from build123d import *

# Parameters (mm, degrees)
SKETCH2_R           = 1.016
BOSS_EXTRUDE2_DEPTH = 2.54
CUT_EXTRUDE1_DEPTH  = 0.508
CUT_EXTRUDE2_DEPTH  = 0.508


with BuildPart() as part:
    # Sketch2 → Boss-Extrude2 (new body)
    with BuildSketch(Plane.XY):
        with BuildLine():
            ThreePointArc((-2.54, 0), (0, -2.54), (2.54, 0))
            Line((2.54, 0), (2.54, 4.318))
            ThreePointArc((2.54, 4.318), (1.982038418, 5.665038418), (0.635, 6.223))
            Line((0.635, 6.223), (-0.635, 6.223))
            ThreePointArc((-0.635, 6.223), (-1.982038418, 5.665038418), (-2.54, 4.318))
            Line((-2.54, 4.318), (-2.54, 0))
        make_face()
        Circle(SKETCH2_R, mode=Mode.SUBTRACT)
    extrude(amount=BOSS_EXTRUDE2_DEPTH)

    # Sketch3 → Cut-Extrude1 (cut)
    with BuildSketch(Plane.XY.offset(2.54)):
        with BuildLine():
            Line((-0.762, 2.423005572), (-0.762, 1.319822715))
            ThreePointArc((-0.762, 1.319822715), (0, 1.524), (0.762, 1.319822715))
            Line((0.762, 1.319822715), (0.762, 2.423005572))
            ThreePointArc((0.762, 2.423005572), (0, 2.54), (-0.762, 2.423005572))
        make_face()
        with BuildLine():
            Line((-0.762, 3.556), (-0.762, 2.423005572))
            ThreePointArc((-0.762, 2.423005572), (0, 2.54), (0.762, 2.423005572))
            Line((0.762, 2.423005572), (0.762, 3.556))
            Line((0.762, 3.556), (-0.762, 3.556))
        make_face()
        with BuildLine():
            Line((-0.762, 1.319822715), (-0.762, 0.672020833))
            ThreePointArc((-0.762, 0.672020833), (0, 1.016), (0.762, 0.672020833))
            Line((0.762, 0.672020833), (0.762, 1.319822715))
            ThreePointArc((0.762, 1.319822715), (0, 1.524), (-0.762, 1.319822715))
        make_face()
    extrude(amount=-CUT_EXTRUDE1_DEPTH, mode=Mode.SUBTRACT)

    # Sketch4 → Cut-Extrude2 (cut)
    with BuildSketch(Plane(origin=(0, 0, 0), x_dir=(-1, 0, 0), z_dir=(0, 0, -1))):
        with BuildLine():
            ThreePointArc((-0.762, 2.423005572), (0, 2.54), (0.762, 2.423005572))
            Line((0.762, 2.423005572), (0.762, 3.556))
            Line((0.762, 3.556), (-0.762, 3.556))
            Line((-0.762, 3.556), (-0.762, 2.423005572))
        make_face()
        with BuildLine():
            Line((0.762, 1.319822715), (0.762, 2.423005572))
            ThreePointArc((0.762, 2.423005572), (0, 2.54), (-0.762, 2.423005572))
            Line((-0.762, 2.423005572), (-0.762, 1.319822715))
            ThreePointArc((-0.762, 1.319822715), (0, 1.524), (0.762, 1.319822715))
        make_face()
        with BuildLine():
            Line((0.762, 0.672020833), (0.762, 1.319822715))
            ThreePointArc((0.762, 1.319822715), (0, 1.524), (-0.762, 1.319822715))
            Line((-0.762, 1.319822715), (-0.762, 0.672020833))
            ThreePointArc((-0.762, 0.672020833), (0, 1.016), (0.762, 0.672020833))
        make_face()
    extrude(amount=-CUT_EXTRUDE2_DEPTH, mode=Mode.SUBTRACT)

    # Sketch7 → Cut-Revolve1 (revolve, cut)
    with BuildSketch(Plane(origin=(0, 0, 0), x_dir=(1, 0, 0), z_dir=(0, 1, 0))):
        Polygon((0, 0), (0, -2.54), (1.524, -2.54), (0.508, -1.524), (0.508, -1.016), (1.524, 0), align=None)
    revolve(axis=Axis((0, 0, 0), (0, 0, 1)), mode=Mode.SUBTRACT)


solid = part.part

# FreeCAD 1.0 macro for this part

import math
import FreeCAD as App
import Part
import Sketcher
Q = App.Units.Quantity

doc = App.newDocument("Part")
body = doc.addObject("PartDesign::Body", "Body")

# Sketch on XY plane
sketch1 = doc.addObject("Sketcher::SketchObject", "Sketch")
body.addObject(sketch1)
sketch1.AttachmentSupport = (doc.XY_Plane, [""])
sketch1.MapMode = "FlatFace"
sketch1.addGeometry([
    Part.ArcOfCircle(Part.Circle(App.Vector(0, 0, 0), App.Vector(0, 0, 1), 2.54), math.radians(180), math.radians(360)),  # 0
    Part.LineSegment(App.Vector(2.54, 0, 0), App.Vector(2.54, 4.318, 0)),  # 1
    Part.ArcOfCircle(Part.Circle(App.Vector(0.635, 4.318, 0), App.Vector(0, 0, 1), 1.905), math.radians(0), math.radians(90)),  # 2
    Part.LineSegment(App.Vector(0.635, 6.223, 0), App.Vector(-0.635, 6.223, 0)),  # 3
    Part.ArcOfCircle(Part.Circle(App.Vector(-0.635, 4.318, 0), App.Vector(0, 0, 1), 1.905), math.radians(90), math.radians(180)),  # 4
    Part.LineSegment(App.Vector(-2.54, 4.318, 0), App.Vector(-2.54, 0, 0)),  # 5
    Part.Circle(App.Vector(0, 0, 0), App.Vector(0, 0, 1), 1.016),  # 6
], False)
sketch1.addConstraint([
    Sketcher.Constraint("Tangent", 0, 2, 1, 1),
    Sketcher.Constraint("Tangent", 1, 2, 2, 1),
    Sketcher.Constraint("Tangent", 2, 2, 3, 1),
    Sketcher.Constraint("Tangent", 3, 2, 4, 1),
    Sketcher.Constraint("Tangent", 4, 2, 5, 1),
    Sketcher.Constraint("Tangent", 5, 2, 0, 1),
    Sketcher.Constraint("Vertical", 1),
    Sketcher.Constraint("Horizontal", 3),
    Sketcher.Constraint("Vertical", 5),
    Sketcher.Constraint("Coincident", 0, 3, -1, 1),
    Sketcher.Constraint("Coincident", 6, 3, -1, 1),
    Sketcher.Constraint("Equal", 2, 4),
    Sketcher.Constraint("Radius", 0, Q("0.1 in")),
    Sketcher.Constraint("Diameter", 6, Q("0.08 in")),
    Sketcher.Constraint("Radius", 2, Q("0.075 in")),
    Sketcher.Constraint("DistanceY", 1, 1, 1, 2, Q("0.17 in")),
])
pad1 = doc.addObject("PartDesign::Pad", "Pad")
body.addObject(pad1)
pad1.Profile = sketch1
pad1.Length = Q("0.1 in")

# Sketch on XY plane
sketch2 = doc.addObject("Sketcher::SketchObject", "Sketch001")
body.addObject(sketch2)
sketch2.AttachmentSupport = (doc.XY_Plane, [""])
sketch2.MapMode = "FlatFace"
sketch2.AttachmentOffset = App.Placement(App.Vector(0, 0, 0.1 * 25.4), App.Rotation())
sketch2.addGeometry([
    Part.LineSegment(App.Vector(0.762, 3.556, 0), App.Vector(-0.762, 3.556, 0)),
    Part.LineSegment(App.Vector(-0.762, 3.556, 0), App.Vector(-0.762, 0.672021, 0)),
    Part.ArcOfCircle(Part.Circle(App.Vector(0, 0, 0), App.Vector(0, 0, 1), 1.016), math.radians(41.409622), math.radians(138.590378)),
    Part.LineSegment(App.Vector(0.762, 0.672021, 0), App.Vector(0.762, 3.556, 0)),
], False)
sketch2.addConstraint([
    Sketcher.Constraint("Coincident", 0, 2, 1, 1),
    Sketcher.Constraint("Coincident", 1, 2, 2, 2),
    Sketcher.Constraint("Coincident", 2, 1, 3, 1),
    Sketcher.Constraint("Coincident", 3, 2, 0, 1),
    Sketcher.Constraint("Horizontal", 0),
    Sketcher.Constraint("Vertical", 1),
    Sketcher.Constraint("Vertical", 3),
    Sketcher.Constraint("Coincident", 2, 3, -1, 1),
    Sketcher.Constraint("Horizontal", 1, 2, 2, 1),
    Sketcher.Constraint("Radius", 2, Q("0.04 in")),
    Sketcher.Constraint("DistanceX", 0, 2, 0, 1, Q("0.06 in")),
    Sketcher.Constraint("DistanceY", -1, 1, 0, 2, Q("0.14 in")),
])
pocket1 = doc.addObject("PartDesign::Pocket", "Pocket")
body.addObject(pocket1)
pocket1.Profile = sketch2
pocket1.Length = Q("0.02 in")

# Sketch on XY plane
sketch3 = doc.addObject("Sketcher::SketchObject", "Sketch002")
body.addObject(sketch3)
sketch3.AttachmentSupport = (doc.XY_Plane, [""])
sketch3.MapMode = "FlatFace"
sketch3.addGeometry([
    Part.LineSegment(App.Vector(-0.762, 3.556, 0), App.Vector(0.762, 3.556, 0)),
    Part.LineSegment(App.Vector(0.762, 3.556, 0), App.Vector(0.762, 0.672021, 0)),
    Part.ArcOfCircle(Part.Circle(App.Vector(0, 0, 0), App.Vector(0, 0, 1), 1.016), math.radians(41.409622), math.radians(138.590378)),
    Part.LineSegment(App.Vector(-0.762, 0.672021, 0), App.Vector(-0.762, 3.556, 0)),
], False)
sketch3.addConstraint([
    Sketcher.Constraint("Coincident", 0, 2, 1, 1),
    Sketcher.Constraint("Coincident", 1, 2, 2, 1),
    Sketcher.Constraint("Coincident", 2, 2, 3, 1),
    Sketcher.Constraint("Coincident", 3, 2, 0, 1),
    Sketcher.Constraint("Horizontal", 0),
    Sketcher.Constraint("Vertical", 1),
    Sketcher.Constraint("Vertical", 3),
    Sketcher.Constraint("Coincident", 2, 3, -1, 1),
    Sketcher.Constraint("Horizontal", 1, 2, 2, 2),
    Sketcher.Constraint("Radius", 2, Q("0.04 in")),
    Sketcher.Constraint("DistanceX", 0, 1, 0, 2, Q("0.06 in")),
    Sketcher.Constraint("DistanceY", -1, 1, 0, 2, Q("0.14 in")),
])
pocket2 = doc.addObject("PartDesign::Pocket", "Pocket001")
body.addObject(pocket2)
pocket2.Profile = sketch3
pocket2.Length = Q("0.02 in")
pocket2.Reversed = True

# Sketch on XZ plane
sketch4 = doc.addObject("Sketcher::SketchObject", "Sketch003")
body.addObject(sketch4)
sketch4.AttachmentSupport = (doc.XZ_Plane, [""])
sketch4.MapMode = "FlatFace"
sketch4.addGeometry([
    Part.LineSegment(App.Vector(0, 0, 0), App.Vector(0, 2.54, 0)),  # 0
    Part.LineSegment(App.Vector(0, 2.54, 0), App.Vector(1.524, 2.54, 0)),  # 1
    Part.LineSegment(App.Vector(1.524, 2.54, 0), App.Vector(0.508, 1.524, 0)),  # 2
    Part.LineSegment(App.Vector(0.508, 1.524, 0), App.Vector(0.508, 1.016, 0)),  # 3
    Part.LineSegment(App.Vector(0.508, 1.016, 0), App.Vector(1.524, 0, 0)),  # 4
    Part.LineSegment(App.Vector(1.524, 0, 0), App.Vector(0, 0, 0)),  # 5
], False)
sketch4.addConstraint([
    Sketcher.Constraint("Coincident", 0, 2, 1, 1),
    Sketcher.Constraint("Coincident", 1, 2, 2, 1),
    Sketcher.Constraint("Coincident", 2, 2, 3, 1),
    Sketcher.Constraint("Coincident", 3, 2, 4, 1),
    Sketcher.Constraint("Coincident", 4, 2, 5, 1),
    Sketcher.Constraint("Coincident", 5, 2, 0, 1),
    Sketcher.Constraint("Vertical", 0),
    Sketcher.Constraint("Horizontal", 1),
    Sketcher.Constraint("Vertical", 3),
    Sketcher.Constraint("Horizontal", 5),
    Sketcher.Constraint("Coincident", 5, 2, -1, 1),
    Sketcher.Constraint("Perpendicular", 2, 4),
    Sketcher.Constraint("Vertical", 1, 2, 4, 2),
    Sketcher.Constraint("Equal", 2, 4),
    Sketcher.Constraint("DistanceY", 0, 1, 0, 2, Q("0.1 in")),
    Sketcher.Constraint("DistanceX", 1, 1, 1, 2, Q("0.06 in")),
    Sketcher.Constraint("DistanceY", 3, 2, 3, 1, Q("0.02 in")),
])
groove = doc.addObject("PartDesign::Groove", "Groove")
body.addObject(groove)
groove.Profile = sketch4
groove.ReferenceAxis = (sketch4, ["V_Axis"])
groove.Angle = 360

doc.recompute()
